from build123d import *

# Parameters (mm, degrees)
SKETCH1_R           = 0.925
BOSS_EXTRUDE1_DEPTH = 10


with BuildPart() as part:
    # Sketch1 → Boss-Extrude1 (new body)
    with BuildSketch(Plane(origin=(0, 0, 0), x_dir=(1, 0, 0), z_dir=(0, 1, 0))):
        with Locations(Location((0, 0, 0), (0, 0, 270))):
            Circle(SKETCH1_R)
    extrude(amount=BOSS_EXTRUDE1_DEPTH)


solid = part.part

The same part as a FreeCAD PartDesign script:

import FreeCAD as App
import Part
import Sketcher
Q = App.Units.Quantity

doc = App.newDocument("Part")
body = doc.addObject("PartDesign::Body", "Body")

sketch1 = body.newObject("Sketcher::SketchObject", "Sketch")
sketch1.AttachmentSupport = (doc.getObject("XZ_Plane"), [""])
sketch1.MapMode = "FlatFace"
sketch1.addGeometry(Part.Circle(App.Vector(0, 0, 0), App.Vector(0, 0, 1), 0.925), False)
sketch1.addConstraint(Sketcher.Constraint("Coincident", 0, 3, -1, 1))
sketch1.addConstraint(Sketcher.Constraint("Diameter", 0, Q("1.85 mm")))
pad1 = body.newObject("PartDesign::Pad", "Pad")
pad1.Profile = sketch1
pad1.Length = 10
pad1.Reversed = True

doc.recompute()
